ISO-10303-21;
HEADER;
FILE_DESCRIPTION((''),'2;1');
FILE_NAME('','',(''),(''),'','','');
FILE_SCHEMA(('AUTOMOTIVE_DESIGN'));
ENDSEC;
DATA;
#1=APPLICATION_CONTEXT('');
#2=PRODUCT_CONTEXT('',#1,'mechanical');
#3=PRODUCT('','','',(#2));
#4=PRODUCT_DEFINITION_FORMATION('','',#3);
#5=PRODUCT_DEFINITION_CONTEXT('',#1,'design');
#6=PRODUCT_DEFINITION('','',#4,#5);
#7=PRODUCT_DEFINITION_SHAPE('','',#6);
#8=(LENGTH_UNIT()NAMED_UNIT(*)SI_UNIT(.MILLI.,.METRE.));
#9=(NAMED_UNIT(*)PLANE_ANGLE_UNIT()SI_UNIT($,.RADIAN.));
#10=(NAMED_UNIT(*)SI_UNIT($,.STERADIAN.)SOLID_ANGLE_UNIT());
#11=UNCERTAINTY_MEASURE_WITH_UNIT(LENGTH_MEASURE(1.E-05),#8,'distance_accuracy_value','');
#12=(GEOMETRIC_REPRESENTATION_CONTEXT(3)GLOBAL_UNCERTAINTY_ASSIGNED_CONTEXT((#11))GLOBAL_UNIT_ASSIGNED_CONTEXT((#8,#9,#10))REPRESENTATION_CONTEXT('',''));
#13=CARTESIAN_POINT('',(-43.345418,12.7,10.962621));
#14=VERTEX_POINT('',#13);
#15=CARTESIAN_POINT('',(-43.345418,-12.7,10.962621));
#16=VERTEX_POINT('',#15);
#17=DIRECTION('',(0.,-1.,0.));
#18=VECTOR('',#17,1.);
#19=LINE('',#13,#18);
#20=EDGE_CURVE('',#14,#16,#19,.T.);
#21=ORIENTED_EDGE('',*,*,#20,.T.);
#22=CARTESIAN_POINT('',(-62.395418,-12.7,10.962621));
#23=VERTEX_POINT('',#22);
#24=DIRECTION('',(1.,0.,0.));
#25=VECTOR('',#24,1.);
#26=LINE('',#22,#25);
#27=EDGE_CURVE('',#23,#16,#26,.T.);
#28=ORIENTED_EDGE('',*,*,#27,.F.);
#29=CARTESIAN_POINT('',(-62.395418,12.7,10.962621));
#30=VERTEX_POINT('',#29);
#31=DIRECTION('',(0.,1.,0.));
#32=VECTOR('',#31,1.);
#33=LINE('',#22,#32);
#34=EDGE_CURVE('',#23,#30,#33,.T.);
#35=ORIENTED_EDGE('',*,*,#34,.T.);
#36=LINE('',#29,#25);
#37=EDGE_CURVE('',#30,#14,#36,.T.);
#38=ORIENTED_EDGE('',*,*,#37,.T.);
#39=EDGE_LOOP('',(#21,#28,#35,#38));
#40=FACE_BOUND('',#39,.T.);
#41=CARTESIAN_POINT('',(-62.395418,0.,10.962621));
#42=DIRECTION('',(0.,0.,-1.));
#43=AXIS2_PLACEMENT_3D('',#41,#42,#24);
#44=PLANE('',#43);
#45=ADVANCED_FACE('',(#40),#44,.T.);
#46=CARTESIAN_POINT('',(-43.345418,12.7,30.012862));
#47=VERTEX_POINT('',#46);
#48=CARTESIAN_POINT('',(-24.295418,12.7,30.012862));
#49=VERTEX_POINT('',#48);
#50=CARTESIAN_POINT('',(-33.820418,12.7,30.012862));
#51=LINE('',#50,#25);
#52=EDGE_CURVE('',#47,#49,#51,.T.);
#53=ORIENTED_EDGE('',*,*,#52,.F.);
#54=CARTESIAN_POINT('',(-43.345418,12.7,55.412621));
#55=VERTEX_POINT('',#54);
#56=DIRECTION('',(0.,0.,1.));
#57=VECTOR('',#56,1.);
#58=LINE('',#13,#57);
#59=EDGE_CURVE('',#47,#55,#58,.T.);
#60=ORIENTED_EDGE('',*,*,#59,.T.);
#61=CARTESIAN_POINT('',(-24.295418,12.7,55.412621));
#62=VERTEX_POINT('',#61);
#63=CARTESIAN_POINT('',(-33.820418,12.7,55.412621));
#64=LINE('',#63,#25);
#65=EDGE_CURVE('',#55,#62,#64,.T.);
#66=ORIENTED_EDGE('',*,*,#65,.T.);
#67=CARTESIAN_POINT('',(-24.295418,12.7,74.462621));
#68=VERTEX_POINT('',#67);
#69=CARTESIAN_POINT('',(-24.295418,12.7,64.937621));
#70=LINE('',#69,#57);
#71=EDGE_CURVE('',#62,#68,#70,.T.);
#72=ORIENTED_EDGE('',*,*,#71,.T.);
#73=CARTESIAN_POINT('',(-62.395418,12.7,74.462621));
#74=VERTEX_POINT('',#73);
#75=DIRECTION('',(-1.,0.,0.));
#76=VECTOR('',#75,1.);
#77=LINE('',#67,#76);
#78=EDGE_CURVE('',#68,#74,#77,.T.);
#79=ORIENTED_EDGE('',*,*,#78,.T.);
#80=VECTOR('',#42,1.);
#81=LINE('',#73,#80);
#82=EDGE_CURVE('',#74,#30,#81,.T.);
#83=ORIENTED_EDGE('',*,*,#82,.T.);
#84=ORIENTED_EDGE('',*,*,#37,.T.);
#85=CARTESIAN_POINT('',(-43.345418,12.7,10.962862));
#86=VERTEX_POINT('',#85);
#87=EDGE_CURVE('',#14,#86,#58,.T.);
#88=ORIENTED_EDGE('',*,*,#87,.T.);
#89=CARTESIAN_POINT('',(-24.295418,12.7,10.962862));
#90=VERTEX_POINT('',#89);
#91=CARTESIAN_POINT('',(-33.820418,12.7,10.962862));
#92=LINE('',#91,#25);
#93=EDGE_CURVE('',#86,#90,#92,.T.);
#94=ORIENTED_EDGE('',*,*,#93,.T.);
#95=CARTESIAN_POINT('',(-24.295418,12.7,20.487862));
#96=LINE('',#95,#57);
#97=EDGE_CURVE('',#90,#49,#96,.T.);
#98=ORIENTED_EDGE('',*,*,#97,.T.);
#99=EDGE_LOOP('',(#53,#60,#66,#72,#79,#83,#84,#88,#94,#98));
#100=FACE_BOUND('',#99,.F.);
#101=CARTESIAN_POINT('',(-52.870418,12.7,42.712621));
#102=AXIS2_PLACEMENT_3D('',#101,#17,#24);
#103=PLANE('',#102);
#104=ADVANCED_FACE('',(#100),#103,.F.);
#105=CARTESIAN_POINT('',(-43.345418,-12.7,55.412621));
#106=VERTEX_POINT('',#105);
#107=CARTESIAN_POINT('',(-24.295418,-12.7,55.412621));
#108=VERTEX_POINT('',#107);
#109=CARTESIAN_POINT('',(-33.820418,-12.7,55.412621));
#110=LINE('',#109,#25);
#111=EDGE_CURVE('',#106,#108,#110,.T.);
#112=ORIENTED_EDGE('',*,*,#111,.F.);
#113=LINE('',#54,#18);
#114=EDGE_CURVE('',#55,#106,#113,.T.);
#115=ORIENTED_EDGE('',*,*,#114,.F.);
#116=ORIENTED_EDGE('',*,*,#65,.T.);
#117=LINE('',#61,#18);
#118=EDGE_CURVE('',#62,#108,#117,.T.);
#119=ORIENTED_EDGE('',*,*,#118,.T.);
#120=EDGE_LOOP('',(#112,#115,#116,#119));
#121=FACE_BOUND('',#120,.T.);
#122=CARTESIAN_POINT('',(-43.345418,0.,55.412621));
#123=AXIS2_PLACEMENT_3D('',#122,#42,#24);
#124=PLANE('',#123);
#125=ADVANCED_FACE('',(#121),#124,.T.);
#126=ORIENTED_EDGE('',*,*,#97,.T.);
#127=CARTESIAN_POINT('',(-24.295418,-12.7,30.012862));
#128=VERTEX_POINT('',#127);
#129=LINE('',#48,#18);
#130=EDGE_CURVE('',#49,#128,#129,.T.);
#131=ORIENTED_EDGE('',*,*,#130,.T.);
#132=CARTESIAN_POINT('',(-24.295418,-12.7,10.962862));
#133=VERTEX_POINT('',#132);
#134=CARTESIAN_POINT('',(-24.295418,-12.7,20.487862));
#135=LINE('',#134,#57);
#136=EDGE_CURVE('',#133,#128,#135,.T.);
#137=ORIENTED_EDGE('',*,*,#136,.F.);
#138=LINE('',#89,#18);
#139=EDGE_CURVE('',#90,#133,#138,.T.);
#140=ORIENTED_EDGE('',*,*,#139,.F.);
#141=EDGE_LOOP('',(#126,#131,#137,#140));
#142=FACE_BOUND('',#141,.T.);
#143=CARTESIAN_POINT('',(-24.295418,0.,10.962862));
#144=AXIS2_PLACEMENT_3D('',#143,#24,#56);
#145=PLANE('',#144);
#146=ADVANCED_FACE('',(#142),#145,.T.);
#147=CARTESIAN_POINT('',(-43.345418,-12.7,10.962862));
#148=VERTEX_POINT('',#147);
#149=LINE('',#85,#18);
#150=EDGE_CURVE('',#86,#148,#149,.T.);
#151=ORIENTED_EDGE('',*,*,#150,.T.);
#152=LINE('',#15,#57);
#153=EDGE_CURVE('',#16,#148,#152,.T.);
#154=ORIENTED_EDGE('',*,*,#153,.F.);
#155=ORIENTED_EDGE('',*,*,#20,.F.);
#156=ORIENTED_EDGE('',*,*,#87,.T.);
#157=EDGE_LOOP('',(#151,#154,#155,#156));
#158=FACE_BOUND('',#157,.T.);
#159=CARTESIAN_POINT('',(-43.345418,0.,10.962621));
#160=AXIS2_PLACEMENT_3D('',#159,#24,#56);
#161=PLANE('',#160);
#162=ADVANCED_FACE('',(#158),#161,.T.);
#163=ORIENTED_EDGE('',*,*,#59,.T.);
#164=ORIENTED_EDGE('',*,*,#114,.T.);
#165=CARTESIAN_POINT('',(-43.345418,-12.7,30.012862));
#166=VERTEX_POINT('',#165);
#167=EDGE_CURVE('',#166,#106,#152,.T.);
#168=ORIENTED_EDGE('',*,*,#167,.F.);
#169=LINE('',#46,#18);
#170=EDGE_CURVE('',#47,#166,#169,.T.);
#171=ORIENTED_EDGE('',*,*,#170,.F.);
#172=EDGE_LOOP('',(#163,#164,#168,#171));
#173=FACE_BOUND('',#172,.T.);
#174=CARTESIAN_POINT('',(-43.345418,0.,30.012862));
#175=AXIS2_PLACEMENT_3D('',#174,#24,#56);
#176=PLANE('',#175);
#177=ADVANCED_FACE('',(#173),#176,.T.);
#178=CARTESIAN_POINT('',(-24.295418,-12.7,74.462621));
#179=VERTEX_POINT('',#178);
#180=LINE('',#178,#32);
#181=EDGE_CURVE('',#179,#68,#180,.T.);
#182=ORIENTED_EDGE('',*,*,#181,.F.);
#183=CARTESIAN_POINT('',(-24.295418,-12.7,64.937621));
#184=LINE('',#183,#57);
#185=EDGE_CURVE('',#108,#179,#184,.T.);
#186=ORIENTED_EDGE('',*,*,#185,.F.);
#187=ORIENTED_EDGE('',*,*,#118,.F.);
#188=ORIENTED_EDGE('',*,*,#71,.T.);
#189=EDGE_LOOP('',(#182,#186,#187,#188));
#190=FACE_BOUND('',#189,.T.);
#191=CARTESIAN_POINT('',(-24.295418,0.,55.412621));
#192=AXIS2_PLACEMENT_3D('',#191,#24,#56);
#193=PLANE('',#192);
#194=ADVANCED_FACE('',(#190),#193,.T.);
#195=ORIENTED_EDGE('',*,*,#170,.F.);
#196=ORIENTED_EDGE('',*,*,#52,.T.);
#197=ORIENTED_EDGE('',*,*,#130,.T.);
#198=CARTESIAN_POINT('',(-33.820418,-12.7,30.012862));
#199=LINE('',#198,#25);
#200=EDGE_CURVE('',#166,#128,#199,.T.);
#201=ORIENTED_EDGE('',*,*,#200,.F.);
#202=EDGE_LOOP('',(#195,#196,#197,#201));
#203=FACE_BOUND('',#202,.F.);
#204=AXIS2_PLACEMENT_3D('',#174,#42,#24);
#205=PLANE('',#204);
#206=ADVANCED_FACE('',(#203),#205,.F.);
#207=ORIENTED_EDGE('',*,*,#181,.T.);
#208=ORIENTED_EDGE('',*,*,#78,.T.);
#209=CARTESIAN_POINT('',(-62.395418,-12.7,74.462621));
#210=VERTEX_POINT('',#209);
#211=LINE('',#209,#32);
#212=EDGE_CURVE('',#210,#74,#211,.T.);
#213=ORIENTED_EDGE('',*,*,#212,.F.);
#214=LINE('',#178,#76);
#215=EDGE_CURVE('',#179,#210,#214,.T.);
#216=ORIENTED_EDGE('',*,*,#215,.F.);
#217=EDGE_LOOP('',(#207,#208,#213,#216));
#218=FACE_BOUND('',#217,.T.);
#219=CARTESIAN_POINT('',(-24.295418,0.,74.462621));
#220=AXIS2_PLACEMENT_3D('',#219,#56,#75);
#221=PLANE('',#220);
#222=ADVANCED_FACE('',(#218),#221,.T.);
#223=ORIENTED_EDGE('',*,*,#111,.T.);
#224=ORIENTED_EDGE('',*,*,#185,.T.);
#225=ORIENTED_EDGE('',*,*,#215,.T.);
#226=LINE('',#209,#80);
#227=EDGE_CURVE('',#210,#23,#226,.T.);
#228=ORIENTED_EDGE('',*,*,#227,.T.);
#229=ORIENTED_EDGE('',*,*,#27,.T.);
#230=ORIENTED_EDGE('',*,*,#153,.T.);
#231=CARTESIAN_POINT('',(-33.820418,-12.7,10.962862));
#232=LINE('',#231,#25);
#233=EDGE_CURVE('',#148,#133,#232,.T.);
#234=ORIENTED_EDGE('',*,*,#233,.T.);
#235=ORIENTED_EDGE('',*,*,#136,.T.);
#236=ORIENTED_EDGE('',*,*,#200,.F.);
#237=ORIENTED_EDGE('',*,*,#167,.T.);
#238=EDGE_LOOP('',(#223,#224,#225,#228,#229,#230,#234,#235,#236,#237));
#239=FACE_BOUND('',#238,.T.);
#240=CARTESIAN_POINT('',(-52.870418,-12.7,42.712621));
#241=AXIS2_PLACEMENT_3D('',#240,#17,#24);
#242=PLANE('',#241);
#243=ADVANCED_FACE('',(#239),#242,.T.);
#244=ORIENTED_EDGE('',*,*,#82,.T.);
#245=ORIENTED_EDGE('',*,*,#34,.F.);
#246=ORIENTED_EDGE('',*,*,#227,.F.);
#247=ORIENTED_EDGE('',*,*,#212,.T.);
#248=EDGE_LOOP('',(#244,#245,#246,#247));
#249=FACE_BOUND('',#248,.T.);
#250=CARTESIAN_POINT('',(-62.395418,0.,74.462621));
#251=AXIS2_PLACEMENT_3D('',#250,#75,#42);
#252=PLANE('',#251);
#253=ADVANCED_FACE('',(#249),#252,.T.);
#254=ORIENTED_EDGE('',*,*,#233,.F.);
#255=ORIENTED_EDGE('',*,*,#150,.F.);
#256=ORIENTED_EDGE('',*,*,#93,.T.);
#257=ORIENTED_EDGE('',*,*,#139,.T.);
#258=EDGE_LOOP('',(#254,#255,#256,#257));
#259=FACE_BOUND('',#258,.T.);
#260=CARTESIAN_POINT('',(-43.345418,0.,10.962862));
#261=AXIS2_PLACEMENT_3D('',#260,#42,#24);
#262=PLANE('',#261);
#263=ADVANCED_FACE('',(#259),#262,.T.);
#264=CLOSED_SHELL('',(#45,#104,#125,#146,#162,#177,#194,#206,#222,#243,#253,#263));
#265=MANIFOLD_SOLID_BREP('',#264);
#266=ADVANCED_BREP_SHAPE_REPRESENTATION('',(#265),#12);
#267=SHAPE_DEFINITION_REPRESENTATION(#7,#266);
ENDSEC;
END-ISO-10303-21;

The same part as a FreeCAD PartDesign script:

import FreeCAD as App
import Part
import Sketcher

V = App.Vector
Q = App.Units.Quantity

doc = App.newDocument("Part")
params = doc.addObject("Spreadsheet::Sheet", "Params")
for row, (alias, value) in enumerate([
    ("sketch1_width", "1.5 in"),
    ("sketch1_height", "2.5 in"),
    ("pad1_length", "1 in"),
], start=1):
    params.set(f"A{row}", alias)
    params.set(f"B{row}", "=" + value)
    params.setAlias(f"B{row}", alias)

body = doc.addObject("PartDesign::Body", "Body")

# Sketch on XZ plane
sketch1 = body.newObject("Sketcher::SketchObject", "Sketch")
sketch1.AttachmentSupport = (doc.getObject("XZ_Plane"), [""])
sketch1.MapMode = "FlatFace"
sketch1.addGeometry([
    Part.LineSegment(V(-62.39542, 10.96262, 0), V(-43.34542, 10.96262, 0)),  # 0
    Part.LineSegment(V(-43.34542, 10.96262, 0), V(-43.34542, 10.96286, 0)),  # 1
    Part.LineSegment(V(-43.34542, 10.96286, 0), V(-24.29542, 10.96286, 0)),  # 2
    Part.LineSegment(V(-24.29542, 10.96286, 0), V(-24.29542, 30.01286, 0)),  # 3
    Part.LineSegment(V(-24.29542, 30.01286, 0), V(-43.34542, 30.01286, 0)),  # 4
    Part.LineSegment(V(-43.34542, 30.01286, 0), V(-43.34542, 55.41262, 0)),  # 5
    Part.LineSegment(V(-43.34542, 55.41262, 0), V(-24.29542, 55.41262, 0)),  # 6
    Part.LineSegment(V(-24.29542, 55.41262, 0), V(-24.29542, 74.46262, 0)),  # 7
    Part.LineSegment(V(-24.29542, 74.46262, 0), V(-62.39542, 74.46262, 0)),  # 8
    Part.LineSegment(V(-62.39542, 74.46262, 0), V(-62.39542, 10.96262, 0)),  # 9
], False)
sketch1.addConstraint([
    Sketcher.Constraint("Coincident", 0, 2, 1, 1),
    Sketcher.Constraint("Coincident", 1, 2, 2, 1),
    Sketcher.Constraint("Coincident", 2, 2, 3, 1),
    Sketcher.Constraint("Coincident", 3, 2, 4, 1),
    Sketcher.Constraint("Coincident", 4, 2, 5, 1),
    Sketcher.Constraint("Coincident", 5, 2, 6, 1),
    Sketcher.Constraint("Coincident", 6, 2, 7, 1),
    Sketcher.Constraint("Coincident", 7, 2, 8, 1),
    Sketcher.Constraint("Coincident", 8, 2, 9, 1),
    Sketcher.Constraint("Coincident", 9, 2, 0, 1),
    Sketcher.Constraint("Horizontal", 0),
    Sketcher.Constraint("Vertical", 1),
    Sketcher.Constraint("Horizontal", 2),
    Sketcher.Constraint("Vertical", 3),
    Sketcher.Constraint("Horizontal", 4),
    Sketcher.Constraint("Vertical", 5),
    Sketcher.Constraint("Horizontal", 6),
    Sketcher.Constraint("Vertical", 7),
    Sketcher.Constraint("Horizontal", 8),
    Sketcher.Constraint("Vertical", 9),
    Sketcher.Constraint("Vertical", 1, 2, 4, 2),
    Sketcher.Constraint("Vertical", 3, 2, 6, 2),
    Sketcher.Constraint("Equal", 0, 2),
    Sketcher.Constraint("Equal", 6, 3),
    Sketcher.Constraint("Equal", 3, 7),
    Sketcher.Constraint("DistanceX", 8, 2, 8, 1, Q("1.5 in")),
    Sketcher.Constraint("DistanceY", 9, 2, 9, 1, Q("2.5 in")),
    Sketcher.Constraint("DistanceY", 1, 1, 1, 2, 0.000241),
    Sketcher.Constraint("DistanceX", 0, 2, -1, 1, 43.345418),
    Sketcher.Constraint("DistanceY", -1, 1, 0, 2, 10.962621),
])
sketch1.setExpression("Constraints[25]", "Params.sketch1_width")
sketch1.setExpression("Constraints[26]", "Params.sketch1_height")
pad1 = body.newObject("PartDesign::Pad", "Pad")
pad1.Profile = sketch1
pad1.setExpression("Length", "Params.pad1_length")
pad1.Midplane = True

doc.recompute()
